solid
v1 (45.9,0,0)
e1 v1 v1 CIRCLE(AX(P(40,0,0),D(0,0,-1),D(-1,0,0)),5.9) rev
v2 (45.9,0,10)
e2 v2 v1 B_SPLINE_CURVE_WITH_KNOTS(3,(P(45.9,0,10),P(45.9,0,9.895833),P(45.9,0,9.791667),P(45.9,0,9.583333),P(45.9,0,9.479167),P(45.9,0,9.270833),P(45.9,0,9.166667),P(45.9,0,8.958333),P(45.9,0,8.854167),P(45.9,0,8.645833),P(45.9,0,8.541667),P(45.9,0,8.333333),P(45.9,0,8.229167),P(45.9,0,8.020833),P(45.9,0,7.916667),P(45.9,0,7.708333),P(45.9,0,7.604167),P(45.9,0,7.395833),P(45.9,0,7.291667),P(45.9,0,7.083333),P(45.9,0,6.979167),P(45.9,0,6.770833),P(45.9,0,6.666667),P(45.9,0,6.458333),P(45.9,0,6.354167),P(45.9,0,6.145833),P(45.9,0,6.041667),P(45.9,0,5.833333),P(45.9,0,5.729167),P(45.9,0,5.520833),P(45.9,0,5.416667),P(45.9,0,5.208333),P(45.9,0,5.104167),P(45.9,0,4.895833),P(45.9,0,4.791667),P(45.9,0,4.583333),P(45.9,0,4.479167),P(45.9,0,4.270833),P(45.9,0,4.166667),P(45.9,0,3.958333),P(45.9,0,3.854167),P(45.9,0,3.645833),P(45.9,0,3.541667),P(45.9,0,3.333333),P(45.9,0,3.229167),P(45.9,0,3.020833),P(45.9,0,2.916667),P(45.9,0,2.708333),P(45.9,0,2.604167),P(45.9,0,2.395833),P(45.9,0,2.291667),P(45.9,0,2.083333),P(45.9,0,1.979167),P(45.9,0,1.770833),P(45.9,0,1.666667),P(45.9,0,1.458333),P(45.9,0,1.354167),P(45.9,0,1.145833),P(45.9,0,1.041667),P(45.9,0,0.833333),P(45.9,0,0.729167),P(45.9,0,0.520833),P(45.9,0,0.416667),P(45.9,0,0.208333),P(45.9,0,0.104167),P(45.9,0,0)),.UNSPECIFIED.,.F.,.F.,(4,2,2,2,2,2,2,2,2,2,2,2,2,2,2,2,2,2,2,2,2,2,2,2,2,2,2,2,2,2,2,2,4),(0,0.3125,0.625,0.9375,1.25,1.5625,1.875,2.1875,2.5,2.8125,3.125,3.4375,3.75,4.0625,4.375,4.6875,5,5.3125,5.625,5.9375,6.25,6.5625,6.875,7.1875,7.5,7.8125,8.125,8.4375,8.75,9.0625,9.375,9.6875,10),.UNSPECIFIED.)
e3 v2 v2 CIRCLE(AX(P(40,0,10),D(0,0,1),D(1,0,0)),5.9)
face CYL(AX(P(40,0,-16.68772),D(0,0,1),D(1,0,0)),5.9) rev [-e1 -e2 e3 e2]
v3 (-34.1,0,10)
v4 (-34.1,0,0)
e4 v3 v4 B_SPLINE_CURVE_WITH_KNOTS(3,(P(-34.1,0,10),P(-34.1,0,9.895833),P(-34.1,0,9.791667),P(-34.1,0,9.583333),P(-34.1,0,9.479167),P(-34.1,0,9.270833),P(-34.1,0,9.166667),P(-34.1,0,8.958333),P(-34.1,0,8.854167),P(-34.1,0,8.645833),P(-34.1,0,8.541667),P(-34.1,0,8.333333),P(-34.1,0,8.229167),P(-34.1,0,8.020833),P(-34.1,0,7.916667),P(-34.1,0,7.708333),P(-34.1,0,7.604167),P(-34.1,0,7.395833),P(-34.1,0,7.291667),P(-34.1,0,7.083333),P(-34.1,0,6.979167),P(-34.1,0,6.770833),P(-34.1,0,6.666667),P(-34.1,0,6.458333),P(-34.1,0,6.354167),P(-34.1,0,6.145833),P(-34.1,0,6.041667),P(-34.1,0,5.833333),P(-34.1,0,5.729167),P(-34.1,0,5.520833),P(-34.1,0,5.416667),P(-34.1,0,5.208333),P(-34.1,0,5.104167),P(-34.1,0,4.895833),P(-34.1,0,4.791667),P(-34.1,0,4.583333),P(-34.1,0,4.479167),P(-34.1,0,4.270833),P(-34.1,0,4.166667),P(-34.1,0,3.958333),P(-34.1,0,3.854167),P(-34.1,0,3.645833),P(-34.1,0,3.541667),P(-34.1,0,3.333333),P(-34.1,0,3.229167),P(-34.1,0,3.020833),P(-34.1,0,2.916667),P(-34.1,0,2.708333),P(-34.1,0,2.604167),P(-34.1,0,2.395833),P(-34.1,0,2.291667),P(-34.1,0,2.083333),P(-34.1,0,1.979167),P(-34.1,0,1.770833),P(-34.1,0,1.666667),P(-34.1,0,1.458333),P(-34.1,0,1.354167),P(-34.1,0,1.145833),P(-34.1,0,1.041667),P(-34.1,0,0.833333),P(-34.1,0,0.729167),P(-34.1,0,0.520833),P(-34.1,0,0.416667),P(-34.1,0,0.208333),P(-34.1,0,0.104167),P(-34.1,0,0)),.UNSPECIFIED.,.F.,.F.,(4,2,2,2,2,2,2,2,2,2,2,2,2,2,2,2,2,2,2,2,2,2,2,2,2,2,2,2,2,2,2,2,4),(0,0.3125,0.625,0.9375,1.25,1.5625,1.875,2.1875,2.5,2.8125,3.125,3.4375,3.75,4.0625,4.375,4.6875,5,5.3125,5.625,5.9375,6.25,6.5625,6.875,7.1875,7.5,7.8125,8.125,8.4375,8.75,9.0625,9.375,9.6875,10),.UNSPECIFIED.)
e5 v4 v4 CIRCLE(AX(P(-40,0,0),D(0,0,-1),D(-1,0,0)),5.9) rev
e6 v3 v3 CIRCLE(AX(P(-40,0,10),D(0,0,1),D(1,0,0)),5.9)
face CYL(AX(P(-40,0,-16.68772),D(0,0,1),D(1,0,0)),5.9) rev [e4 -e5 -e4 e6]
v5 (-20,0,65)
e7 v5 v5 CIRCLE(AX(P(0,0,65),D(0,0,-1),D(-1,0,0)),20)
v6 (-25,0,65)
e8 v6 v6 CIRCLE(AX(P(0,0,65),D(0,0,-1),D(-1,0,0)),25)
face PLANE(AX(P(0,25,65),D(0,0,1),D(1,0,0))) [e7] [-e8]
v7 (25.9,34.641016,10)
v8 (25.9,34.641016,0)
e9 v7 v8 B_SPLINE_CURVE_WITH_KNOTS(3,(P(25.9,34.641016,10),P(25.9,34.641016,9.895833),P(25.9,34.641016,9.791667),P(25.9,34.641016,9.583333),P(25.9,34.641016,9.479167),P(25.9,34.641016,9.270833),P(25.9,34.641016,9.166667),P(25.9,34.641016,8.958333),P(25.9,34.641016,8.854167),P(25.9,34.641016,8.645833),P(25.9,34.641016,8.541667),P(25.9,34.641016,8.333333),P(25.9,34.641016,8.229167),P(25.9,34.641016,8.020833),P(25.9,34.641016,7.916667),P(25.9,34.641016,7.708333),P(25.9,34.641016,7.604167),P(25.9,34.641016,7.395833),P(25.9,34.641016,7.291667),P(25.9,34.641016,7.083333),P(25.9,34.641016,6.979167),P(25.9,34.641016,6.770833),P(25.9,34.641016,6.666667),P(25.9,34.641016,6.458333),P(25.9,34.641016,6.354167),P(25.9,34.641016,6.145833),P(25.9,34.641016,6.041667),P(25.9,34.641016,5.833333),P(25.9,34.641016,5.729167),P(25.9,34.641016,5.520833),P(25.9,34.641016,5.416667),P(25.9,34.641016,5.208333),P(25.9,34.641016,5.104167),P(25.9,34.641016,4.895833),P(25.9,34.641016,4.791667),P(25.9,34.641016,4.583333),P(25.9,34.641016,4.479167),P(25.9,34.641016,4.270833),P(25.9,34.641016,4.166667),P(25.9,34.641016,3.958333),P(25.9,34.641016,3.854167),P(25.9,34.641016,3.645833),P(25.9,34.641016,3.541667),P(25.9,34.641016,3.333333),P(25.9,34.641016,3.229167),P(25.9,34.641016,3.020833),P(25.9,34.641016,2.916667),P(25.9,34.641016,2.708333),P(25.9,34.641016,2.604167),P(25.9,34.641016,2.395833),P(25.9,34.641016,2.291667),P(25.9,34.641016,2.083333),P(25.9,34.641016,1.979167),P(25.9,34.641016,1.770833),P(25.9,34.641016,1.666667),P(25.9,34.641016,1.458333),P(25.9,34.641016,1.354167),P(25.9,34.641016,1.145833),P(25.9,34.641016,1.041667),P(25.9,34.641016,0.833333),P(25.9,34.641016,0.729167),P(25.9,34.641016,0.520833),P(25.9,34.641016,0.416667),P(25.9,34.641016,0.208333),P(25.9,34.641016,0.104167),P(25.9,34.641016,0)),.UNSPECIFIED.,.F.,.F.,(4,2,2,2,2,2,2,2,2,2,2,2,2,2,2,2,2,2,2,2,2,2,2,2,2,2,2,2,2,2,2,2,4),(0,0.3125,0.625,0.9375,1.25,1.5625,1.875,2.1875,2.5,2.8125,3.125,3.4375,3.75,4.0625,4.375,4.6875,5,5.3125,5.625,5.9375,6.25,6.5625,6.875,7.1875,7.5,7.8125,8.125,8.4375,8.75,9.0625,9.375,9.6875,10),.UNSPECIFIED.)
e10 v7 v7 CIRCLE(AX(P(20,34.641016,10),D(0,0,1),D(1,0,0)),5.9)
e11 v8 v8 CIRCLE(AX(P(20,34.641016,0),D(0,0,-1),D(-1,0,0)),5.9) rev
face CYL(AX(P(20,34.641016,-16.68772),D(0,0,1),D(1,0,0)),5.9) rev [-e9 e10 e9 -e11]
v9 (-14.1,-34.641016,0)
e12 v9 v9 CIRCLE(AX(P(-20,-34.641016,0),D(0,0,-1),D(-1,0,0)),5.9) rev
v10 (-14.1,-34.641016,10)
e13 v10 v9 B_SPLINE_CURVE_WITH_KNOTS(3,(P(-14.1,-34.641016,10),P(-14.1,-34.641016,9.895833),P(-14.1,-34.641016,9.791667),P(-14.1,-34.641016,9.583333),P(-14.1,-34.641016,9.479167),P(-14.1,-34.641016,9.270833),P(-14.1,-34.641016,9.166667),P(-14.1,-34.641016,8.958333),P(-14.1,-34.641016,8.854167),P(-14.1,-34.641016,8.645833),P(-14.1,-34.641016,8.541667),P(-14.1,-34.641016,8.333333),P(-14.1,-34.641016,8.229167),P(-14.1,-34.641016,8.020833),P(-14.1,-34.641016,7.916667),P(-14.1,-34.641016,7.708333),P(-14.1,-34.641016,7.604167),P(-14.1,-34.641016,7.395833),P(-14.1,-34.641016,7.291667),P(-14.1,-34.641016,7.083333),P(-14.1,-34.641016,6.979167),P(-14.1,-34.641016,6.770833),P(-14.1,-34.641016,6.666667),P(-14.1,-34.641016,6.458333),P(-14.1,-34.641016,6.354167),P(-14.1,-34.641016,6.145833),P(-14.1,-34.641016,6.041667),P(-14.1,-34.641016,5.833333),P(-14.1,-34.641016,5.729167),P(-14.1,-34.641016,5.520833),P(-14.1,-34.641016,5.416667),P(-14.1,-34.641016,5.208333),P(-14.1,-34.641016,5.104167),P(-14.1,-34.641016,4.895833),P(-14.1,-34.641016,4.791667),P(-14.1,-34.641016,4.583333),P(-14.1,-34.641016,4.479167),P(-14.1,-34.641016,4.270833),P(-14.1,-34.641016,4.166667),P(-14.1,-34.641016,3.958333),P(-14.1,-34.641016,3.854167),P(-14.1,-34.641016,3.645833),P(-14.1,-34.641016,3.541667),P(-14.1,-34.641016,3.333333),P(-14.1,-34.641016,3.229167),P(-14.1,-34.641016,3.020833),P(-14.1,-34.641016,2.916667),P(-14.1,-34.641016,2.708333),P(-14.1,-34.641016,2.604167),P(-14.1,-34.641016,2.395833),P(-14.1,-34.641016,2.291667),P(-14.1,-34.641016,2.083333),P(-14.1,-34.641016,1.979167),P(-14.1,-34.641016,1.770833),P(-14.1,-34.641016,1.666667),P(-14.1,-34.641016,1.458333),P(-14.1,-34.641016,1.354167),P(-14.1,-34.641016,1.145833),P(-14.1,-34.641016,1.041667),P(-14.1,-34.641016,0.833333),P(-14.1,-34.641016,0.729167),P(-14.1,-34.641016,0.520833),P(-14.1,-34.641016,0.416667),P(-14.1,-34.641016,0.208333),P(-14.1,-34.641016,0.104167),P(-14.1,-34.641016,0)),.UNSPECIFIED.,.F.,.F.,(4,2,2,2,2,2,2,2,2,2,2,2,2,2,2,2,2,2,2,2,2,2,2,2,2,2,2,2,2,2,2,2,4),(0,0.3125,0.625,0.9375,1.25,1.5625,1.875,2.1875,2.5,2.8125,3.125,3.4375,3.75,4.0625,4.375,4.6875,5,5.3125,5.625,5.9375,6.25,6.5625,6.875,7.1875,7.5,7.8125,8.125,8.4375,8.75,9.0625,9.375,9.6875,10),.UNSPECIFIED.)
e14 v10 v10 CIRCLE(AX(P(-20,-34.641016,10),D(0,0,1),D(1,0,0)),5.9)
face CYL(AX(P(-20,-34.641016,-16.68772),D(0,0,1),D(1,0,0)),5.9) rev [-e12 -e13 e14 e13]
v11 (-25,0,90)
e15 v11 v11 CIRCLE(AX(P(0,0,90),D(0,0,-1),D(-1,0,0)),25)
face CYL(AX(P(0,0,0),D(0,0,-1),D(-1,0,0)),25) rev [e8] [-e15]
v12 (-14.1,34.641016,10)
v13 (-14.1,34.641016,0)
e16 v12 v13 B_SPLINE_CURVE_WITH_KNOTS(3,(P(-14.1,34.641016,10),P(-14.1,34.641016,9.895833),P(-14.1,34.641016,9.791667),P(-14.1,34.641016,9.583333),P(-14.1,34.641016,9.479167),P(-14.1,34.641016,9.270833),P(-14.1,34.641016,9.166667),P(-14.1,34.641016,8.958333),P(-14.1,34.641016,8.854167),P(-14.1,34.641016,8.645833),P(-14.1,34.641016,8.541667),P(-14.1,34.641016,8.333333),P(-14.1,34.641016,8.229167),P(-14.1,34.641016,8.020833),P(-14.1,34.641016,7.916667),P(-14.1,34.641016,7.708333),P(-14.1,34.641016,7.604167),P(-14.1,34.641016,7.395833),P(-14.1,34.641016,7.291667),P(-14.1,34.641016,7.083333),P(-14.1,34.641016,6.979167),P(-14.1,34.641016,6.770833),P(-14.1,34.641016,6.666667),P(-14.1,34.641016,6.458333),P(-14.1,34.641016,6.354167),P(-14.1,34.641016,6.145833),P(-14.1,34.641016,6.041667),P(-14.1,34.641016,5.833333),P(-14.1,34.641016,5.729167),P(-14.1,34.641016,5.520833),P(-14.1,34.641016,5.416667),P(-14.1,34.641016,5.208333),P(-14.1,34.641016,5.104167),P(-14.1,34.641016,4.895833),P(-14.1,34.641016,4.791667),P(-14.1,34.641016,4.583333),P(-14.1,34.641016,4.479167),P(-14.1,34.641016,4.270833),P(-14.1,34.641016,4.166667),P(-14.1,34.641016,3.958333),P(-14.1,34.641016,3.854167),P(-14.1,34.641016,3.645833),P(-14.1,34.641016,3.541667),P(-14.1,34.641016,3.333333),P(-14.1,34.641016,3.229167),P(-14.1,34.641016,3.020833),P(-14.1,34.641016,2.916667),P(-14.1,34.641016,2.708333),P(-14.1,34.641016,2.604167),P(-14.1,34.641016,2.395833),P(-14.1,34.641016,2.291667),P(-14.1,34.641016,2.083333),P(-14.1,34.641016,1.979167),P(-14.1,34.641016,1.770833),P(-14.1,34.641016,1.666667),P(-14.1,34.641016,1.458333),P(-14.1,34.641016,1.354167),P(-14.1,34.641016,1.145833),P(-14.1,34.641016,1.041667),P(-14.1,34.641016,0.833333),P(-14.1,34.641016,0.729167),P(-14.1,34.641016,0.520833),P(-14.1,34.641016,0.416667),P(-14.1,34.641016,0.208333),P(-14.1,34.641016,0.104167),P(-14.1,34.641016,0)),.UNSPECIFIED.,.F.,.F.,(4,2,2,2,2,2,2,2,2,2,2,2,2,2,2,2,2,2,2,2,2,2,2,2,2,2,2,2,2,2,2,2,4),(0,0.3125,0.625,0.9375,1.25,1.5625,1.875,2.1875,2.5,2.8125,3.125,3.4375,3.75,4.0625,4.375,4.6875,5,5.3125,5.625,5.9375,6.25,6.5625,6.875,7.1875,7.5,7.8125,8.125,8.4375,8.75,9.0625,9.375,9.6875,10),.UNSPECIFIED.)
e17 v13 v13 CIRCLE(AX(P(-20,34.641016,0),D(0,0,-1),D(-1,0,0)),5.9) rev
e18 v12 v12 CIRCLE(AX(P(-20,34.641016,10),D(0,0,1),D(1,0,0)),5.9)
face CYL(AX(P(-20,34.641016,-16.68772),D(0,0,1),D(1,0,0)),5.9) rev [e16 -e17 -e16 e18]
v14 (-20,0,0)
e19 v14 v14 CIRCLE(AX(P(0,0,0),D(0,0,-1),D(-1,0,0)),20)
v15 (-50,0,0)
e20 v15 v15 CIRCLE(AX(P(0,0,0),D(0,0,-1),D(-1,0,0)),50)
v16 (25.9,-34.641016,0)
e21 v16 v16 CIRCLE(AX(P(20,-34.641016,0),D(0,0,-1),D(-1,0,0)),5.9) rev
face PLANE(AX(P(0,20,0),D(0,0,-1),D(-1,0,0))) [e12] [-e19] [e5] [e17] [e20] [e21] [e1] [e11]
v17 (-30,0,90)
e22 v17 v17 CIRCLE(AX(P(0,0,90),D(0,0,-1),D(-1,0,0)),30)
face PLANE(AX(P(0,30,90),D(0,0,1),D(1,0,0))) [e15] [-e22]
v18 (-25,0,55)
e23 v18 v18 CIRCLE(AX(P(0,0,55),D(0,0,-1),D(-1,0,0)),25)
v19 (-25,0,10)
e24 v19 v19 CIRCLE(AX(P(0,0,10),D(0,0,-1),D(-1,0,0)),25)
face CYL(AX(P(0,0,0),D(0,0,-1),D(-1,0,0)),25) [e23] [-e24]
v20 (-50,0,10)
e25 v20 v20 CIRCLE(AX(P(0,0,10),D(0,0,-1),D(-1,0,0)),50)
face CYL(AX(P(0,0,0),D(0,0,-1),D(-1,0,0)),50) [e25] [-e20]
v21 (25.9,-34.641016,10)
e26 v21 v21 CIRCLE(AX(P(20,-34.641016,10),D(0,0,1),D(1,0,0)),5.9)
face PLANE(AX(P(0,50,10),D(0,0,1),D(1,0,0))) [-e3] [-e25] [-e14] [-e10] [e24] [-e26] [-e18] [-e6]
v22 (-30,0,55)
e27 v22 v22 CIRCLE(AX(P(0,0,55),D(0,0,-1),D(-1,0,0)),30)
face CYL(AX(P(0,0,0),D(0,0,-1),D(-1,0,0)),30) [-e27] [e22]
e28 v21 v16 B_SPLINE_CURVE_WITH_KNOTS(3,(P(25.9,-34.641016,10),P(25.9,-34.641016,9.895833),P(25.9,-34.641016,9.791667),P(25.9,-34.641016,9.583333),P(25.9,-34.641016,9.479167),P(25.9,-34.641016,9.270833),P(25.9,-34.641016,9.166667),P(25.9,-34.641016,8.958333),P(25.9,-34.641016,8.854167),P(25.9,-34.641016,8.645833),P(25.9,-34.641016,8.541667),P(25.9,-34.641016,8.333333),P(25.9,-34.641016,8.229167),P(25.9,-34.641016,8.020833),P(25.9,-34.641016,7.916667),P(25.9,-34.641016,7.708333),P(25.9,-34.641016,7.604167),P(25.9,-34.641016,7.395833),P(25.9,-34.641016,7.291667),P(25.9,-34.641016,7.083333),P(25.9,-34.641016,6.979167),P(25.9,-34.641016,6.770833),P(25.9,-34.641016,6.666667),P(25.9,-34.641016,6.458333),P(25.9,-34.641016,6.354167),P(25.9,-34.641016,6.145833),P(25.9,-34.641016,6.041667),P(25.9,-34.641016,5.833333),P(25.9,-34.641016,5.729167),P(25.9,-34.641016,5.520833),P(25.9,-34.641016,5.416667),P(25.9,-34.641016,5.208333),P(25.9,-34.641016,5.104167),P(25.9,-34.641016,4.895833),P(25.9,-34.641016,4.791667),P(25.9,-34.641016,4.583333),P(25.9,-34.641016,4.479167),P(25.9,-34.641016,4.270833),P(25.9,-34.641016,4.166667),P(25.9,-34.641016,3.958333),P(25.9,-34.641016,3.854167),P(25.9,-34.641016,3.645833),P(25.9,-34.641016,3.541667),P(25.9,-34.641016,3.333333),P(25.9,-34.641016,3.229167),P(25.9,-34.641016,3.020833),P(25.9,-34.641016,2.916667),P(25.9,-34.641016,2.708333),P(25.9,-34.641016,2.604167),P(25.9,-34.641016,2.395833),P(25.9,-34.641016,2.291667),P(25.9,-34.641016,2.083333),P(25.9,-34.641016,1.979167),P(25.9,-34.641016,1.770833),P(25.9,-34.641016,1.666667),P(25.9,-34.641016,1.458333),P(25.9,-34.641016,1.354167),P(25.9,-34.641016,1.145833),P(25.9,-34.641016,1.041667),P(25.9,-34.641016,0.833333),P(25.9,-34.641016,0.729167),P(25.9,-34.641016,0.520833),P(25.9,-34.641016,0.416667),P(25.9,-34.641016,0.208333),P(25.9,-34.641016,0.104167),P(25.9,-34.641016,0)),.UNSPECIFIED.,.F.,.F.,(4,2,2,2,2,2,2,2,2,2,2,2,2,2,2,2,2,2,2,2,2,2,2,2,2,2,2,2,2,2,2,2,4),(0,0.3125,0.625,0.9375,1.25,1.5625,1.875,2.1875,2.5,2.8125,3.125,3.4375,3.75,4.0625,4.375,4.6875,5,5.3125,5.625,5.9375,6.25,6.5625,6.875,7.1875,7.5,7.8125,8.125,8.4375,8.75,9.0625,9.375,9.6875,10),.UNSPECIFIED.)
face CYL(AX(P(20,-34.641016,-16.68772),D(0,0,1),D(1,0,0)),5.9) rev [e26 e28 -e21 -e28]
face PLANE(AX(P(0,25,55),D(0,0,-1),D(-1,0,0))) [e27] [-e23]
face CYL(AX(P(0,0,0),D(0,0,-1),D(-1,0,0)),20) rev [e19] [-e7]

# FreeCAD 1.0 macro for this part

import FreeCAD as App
import Part
import Sketcher

doc = App.newDocument("Part")
body = doc.addObject("PartDesign::Body", "Body")

sketch1 = doc.addObject("Sketcher::SketchObject", "Sketch")
body.addObject(sketch1)
sketch1.AttachmentSupport = (doc.YZ_Plane, [""])
sketch1.MapMode = "FlatFace"
sketch1.addGeometry([
    Part.LineSegment(App.Vector(20, 0, 0), App.Vector(50, 0, 0)),
    Part.LineSegment(App.Vector(50, 0, 0), App.Vector(50, 10, 0)),
    Part.LineSegment(App.Vector(50, 10, 0), App.Vector(25, 10, 0)),
    Part.LineSegment(App.Vector(25, 10, 0), App.Vector(25, 55, 0)),
    Part.LineSegment(App.Vector(25, 55, 0), App.Vector(30, 55, 0)),
    Part.LineSegment(App.Vector(30, 55, 0), App.Vector(30, 90, 0)),
    Part.LineSegment(App.Vector(30, 90, 0), App.Vector(25, 90, 0)),
    Part.LineSegment(App.Vector(25, 90, 0), App.Vector(25, 65, 0)),
    Part.LineSegment(App.Vector(25, 65, 0), App.Vector(20, 65, 0)),
    Part.LineSegment(App.Vector(20, 65, 0), App.Vector(20, 0, 0)),
], False)
sketch1.addConstraint([
    Sketcher.Constraint("Coincident", 0, 2, 1, 1),
    Sketcher.Constraint("Coincident", 1, 2, 2, 1),
    Sketcher.Constraint("Coincident", 2, 2, 3, 1),
    Sketcher.Constraint("Coincident", 3, 2, 4, 1),
    Sketcher.Constraint("Coincident", 4, 2, 5, 1),
    Sketcher.Constraint("Coincident", 5, 2, 6, 1),
    Sketcher.Constraint("Coincident", 6, 2, 7, 1),
    Sketcher.Constraint("Coincident", 7, 2, 8, 1),
    Sketcher.Constraint("Coincident", 8, 2, 9, 1),
    Sketcher.Constraint("Coincident", 9, 2, 0, 1),
    Sketcher.Constraint("Horizontal", 0),
    Sketcher.Constraint("Vertical", 1),
    Sketcher.Constraint("Horizontal", 2),
    Sketcher.Constraint("Vertical", 3),
    Sketcher.Constraint("Horizontal", 4),
    Sketcher.Constraint("Vertical", 5),
    Sketcher.Constraint("Horizontal", 6),
    Sketcher.Constraint("Vertical", 7),
    Sketcher.Constraint("Horizontal", 8),
    Sketcher.Constraint("Vertical", 9),
    Sketcher.Constraint("PointOnObject", 0, 2, -1),
    Sketcher.Constraint("Vertical", 3, 2, 6, 2),
    Sketcher.Constraint("Equal", 6, 8),
    Sketcher.Constraint("Equal", 2, 7),
    Sketcher.Constraint("DistanceX", 0, 1, 0, 2, 30.0),
    Sketcher.Constraint("DistanceX", 2, 2, 2, 1, 25.0),
    Sketcher.Constraint("DistanceY", 1, 1, 1, 2, 10.0),
    Sketcher.Constraint("DistanceY", 3, 1, 3, 2, 45.0),
    Sketcher.Constraint("DistanceY", 5, 1, 5, 2, 35.0),
    Sketcher.Constraint("DistanceX", -1, 1, 0, 2, 50.0),
])
revolution = doc.addObject("PartDesign::Revolution", "Revolution")
body.addObject(revolution)
revolution.Profile = sketch1
revolution.ReferenceAxis = (sketch1, ["V_Axis"])
revolution.Angle = 360

sketch2 = doc.addObject("Sketcher::SketchObject", "Sketch001")
body.addObject(sketch2)
sketch2.AttachmentSupport = (doc.XY_Plane, [""])
sketch2.MapMode = "FlatFace"
sketch2.AttachmentOffset = App.Placement(App.Vector(0, 0, 10), App.Rotation())
sketch2.addGeometry([
    Part.Circle(App.Vector(40, 0, 0), App.Vector(0, 0, 1), 6),
    Part.Circle(App.Vector(20, -35, 0), App.Vector(0, 0, 1), 6),
    Part.Circle(App.Vector(-20, -35, 0), App.Vector(0, 0, 1), 6),
    Part.Circle(App.Vector(-40, 0, 0), App.Vector(0, 0, 1), 6),
    Part.Circle(App.Vector(-20, 35, 0), App.Vector(0, 0, 1), 6),
    Part.Circle(App.Vector(20, 35, 0), App.Vector(0, 0, 1), 6),
], False)
sketch2.addConstraint([
    Sketcher.Constraint("Equal", 0, 1),
    Sketcher.Constraint("Equal", 1, 2),
    Sketcher.Constraint("Equal", 2, 3),
    Sketcher.Constraint("Equal", 3, 4),
    Sketcher.Constraint("Equal", 4, 5),
    Sketcher.Constraint("Symmetric", 0, 3, 3, 3, -1, 1),
    Sketcher.Constraint("Symmetric", 1, 3, 4, 3, -1, 1),
    Sketcher.Constraint("Symmetric", 2, 3, 5, 3, -1, 1),
    Sketcher.Constraint("Symmetric", 1, 3, 2, 3, -2),
    Sketcher.Constraint("PointOnObject", 0, 3, -1),
    Sketcher.Constraint("Diameter", 0, 11.8),
    Sketcher.Constraint("DistanceX", -1, 1, 0, 3, 40.0),
    Sketcher.Constraint("DistanceX", -1, 1, 1, 3, 20.0),
    Sketcher.Constraint("DistanceY", 1, 3, -1, 1, 34.641016),
])
pocket1 = doc.addObject("PartDesign::Pocket", "Pocket")
body.addObject(pocket1)
pocket1.Profile = sketch2
pocket1.Length = 10

doc.recompute()
